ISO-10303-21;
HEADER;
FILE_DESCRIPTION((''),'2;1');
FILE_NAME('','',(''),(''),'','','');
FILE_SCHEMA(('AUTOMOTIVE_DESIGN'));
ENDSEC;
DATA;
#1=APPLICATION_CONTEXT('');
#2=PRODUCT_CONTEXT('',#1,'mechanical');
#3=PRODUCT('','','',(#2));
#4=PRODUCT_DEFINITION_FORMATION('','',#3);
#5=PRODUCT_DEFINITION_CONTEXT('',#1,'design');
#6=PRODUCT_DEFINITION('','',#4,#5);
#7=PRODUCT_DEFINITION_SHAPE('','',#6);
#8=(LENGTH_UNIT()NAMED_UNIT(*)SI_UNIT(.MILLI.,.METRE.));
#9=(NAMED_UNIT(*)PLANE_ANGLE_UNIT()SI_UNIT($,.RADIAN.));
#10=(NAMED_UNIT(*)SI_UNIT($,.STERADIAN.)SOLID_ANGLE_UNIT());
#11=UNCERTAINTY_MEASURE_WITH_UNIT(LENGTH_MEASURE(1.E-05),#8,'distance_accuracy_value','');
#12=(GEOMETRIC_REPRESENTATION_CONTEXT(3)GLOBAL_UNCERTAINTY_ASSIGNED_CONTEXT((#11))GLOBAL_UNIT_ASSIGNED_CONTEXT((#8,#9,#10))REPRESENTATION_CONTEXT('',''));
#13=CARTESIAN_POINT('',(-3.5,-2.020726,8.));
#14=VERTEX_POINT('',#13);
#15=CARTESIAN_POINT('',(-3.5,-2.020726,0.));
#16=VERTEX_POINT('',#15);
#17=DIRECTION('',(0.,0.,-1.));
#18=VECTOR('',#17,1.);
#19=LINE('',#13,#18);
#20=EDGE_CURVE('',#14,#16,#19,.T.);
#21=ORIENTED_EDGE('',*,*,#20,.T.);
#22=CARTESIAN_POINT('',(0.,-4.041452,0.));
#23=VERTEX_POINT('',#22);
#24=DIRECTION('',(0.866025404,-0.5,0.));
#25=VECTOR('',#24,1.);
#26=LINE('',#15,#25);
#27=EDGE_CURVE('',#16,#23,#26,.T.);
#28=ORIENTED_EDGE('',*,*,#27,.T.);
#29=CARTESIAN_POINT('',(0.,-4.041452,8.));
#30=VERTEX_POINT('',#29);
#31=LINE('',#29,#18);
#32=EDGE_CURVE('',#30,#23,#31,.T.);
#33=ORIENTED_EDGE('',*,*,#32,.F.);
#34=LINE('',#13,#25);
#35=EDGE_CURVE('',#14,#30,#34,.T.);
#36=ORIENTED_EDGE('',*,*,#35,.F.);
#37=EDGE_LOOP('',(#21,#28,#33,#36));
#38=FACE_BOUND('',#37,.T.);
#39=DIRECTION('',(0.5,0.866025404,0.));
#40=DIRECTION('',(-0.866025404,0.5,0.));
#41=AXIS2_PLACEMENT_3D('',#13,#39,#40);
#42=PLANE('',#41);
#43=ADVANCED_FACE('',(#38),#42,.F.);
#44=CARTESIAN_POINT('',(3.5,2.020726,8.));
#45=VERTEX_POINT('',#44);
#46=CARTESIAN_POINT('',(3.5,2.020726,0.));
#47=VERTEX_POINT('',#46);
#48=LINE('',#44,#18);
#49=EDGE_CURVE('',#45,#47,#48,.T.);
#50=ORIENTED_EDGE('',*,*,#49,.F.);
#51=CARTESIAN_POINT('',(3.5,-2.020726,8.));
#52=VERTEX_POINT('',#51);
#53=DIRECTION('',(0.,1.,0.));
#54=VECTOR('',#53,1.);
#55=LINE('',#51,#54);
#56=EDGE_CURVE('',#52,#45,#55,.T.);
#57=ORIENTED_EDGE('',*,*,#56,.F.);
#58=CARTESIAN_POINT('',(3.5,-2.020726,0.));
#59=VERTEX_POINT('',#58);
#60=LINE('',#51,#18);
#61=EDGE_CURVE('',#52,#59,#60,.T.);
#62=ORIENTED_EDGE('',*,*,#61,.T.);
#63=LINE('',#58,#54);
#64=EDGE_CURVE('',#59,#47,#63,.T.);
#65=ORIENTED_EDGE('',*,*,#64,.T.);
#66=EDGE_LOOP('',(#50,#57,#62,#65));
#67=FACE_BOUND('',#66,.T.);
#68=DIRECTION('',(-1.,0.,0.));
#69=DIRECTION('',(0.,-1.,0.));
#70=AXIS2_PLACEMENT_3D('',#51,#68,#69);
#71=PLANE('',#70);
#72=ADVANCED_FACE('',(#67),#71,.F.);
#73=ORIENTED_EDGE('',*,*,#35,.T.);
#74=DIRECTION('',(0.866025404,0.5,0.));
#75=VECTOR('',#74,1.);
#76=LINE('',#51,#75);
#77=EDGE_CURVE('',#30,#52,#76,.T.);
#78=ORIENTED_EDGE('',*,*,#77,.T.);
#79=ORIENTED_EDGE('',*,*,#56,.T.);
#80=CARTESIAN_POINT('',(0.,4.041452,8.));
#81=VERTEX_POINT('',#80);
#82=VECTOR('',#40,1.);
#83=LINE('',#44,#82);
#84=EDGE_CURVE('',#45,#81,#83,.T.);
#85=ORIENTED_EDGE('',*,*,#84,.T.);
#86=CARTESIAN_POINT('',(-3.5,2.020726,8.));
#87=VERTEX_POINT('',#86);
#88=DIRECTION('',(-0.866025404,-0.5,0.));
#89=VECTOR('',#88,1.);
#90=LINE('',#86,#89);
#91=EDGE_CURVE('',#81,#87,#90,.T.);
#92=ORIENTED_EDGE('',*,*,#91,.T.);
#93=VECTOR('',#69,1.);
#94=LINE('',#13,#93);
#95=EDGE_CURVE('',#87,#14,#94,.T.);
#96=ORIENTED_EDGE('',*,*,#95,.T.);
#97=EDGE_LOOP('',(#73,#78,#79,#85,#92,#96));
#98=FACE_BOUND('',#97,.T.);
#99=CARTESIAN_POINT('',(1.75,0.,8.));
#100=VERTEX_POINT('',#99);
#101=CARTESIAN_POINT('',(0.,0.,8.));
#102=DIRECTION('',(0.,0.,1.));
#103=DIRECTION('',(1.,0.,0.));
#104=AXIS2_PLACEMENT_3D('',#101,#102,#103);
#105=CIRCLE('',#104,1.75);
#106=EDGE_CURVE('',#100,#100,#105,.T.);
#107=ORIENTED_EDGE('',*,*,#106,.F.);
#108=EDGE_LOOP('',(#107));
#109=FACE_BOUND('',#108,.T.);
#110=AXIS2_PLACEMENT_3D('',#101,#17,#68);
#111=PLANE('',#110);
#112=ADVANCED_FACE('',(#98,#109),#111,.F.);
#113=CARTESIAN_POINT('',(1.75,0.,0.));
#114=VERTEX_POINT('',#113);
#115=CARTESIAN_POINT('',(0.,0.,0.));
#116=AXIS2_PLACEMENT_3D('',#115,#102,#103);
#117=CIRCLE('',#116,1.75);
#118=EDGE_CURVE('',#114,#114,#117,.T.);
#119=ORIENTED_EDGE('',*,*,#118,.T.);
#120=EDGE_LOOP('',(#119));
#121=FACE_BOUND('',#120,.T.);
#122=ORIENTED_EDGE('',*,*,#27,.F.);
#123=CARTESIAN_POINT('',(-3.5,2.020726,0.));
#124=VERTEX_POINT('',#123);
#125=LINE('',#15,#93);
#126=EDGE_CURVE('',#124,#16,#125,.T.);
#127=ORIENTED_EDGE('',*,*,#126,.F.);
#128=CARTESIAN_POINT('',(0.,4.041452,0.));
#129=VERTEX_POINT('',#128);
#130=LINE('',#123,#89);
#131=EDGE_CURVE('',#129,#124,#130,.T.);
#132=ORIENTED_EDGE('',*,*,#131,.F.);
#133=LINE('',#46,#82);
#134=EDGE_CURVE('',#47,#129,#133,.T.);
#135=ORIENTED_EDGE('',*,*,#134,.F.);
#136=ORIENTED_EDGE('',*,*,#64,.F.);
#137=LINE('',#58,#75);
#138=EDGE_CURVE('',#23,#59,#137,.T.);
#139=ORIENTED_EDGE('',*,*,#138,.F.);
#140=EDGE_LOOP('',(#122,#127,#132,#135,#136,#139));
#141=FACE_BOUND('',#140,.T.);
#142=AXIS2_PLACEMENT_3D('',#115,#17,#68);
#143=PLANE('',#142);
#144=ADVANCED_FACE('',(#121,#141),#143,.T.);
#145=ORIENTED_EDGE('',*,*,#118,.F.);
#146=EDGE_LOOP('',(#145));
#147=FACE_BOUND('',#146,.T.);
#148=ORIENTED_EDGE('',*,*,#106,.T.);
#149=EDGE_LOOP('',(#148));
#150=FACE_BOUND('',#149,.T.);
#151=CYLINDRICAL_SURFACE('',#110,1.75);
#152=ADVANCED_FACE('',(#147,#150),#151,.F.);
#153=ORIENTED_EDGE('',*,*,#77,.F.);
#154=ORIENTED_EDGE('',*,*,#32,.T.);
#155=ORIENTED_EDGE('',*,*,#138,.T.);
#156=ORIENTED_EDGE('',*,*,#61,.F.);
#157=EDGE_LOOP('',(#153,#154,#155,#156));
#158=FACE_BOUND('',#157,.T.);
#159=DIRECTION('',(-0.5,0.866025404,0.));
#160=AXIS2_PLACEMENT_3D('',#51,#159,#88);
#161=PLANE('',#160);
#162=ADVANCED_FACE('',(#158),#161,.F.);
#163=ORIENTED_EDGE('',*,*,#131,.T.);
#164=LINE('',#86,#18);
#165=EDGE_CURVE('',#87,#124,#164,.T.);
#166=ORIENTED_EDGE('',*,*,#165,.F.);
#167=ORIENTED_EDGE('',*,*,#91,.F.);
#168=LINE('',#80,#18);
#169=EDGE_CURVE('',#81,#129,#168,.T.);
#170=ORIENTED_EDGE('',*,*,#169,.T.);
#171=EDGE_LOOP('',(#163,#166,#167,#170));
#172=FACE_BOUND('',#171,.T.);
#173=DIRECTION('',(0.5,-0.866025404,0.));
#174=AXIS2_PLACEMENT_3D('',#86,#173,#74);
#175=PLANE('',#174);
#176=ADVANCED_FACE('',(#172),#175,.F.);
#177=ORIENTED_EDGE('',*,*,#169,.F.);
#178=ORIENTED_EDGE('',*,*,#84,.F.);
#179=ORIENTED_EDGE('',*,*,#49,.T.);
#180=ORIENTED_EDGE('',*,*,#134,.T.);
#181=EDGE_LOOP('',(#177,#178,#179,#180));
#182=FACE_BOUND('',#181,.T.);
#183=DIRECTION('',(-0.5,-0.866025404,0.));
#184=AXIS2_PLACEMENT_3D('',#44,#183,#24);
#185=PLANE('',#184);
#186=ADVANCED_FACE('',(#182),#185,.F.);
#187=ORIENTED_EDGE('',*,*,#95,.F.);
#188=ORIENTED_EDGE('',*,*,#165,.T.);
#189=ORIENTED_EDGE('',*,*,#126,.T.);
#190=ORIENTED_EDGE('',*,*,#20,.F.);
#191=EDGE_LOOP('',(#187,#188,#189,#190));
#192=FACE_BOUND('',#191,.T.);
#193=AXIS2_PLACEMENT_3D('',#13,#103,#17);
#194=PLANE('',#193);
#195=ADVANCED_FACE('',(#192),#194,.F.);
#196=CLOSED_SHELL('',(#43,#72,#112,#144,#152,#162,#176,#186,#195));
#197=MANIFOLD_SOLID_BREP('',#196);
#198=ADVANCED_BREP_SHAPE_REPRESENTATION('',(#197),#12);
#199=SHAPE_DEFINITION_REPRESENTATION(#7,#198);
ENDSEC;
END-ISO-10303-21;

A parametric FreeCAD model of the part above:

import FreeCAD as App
import Part
import Sketcher
from FreeCAD import Vector
Q = App.Units.Quantity

doc = App.newDocument("Part")
body = doc.addObject("PartDesign::Body", "Body")

sketch1 = doc.addObject("Sketcher::SketchObject", "Sketch")
body.addObject(sketch1)
sketch1.AttachmentSupport = (doc.XY_Plane, [""])
sketch1.MapMode = "FlatFace"
sketch1.addGeometry(Part.LineSegment(Vector(3.5, -2, 0), Vector(3.5, 2, 0)), False)
sketch1.addGeometry(Part.LineSegment(Vector(3.5, 2, 0), Vector(0, 4, 0)), False)
sketch1.addGeometry(Part.LineSegment(Vector(0, 4, 0), Vector(-3.5, 2, 0)), False)
sketch1.addGeometry(Part.LineSegment(Vector(-3.5, 2, 0), Vector(-3.5, -2, 0)), False)
sketch1.addGeometry(Part.LineSegment(Vector(-3.5, -2, 0), Vector(0, -4, 0)), False)
sketch1.addGeometry(Part.LineSegment(Vector(0, -4, 0), Vector(3.5, -2, 0)), False)
sketch1.addGeometry(Part.Circle(Vector(0, 0, 0), Vector(0, 0, 1), 1.8), False)
sketch1.addConstraint(Sketcher.Constraint("Coincident", 0, 2, 1, 1))
sketch1.addConstraint(Sketcher.Constraint("Coincident", 1, 2, 2, 1))
sketch1.addConstraint(Sketcher.Constraint("Coincident", 2, 2, 3, 1))
sketch1.addConstraint(Sketcher.Constraint("Coincident", 3, 2, 4, 1))
sketch1.addConstraint(Sketcher.Constraint("Coincident", 4, 2, 5, 1))
sketch1.addConstraint(Sketcher.Constraint("Coincident", 5, 2, 0, 1))
sketch1.addConstraint(Sketcher.Constraint("Vertical", 0))
sketch1.addConstraint(Sketcher.Constraint("Vertical", 3))
sketch1.addConstraint(Sketcher.Constraint("Coincident", 6, 3, -1, 1))
sketch1.addConstraint(Sketcher.Constraint("Symmetric", 0, 2, 3, 2, -1, 1))
sketch1.addConstraint(Sketcher.Constraint("Symmetric", 1, 2, 4, 2, -1, 1))
sketch1.addConstraint(Sketcher.Constraint("PointOnObject", 1, 2, -2))
sketch1.addConstraint(Sketcher.Constraint("Parallel", 2, 5))
sketch1.addConstraint(Sketcher.Constraint("Horizontal", 0, 2, 2, 2))
sketch1.addConstraint(Sketcher.Constraint("Diameter", 6, 3.5))
sketch1.addConstraint(Sketcher.Constraint("Angle", 1, Q("150 deg")))
sketch1.addConstraint(Sketcher.Constraint("DistanceX", 2, 2, 0, 2, 7.0))
sketch1.addConstraint(Sketcher.Constraint("DistanceY", 0, 1, 0, 2, 4.041452))
pad1 = doc.addObject("PartDesign::Pad", "Pad")
body.addObject(pad1)
pad1.Profile = sketch1
pad1.Length = 8

doc.recompute()
